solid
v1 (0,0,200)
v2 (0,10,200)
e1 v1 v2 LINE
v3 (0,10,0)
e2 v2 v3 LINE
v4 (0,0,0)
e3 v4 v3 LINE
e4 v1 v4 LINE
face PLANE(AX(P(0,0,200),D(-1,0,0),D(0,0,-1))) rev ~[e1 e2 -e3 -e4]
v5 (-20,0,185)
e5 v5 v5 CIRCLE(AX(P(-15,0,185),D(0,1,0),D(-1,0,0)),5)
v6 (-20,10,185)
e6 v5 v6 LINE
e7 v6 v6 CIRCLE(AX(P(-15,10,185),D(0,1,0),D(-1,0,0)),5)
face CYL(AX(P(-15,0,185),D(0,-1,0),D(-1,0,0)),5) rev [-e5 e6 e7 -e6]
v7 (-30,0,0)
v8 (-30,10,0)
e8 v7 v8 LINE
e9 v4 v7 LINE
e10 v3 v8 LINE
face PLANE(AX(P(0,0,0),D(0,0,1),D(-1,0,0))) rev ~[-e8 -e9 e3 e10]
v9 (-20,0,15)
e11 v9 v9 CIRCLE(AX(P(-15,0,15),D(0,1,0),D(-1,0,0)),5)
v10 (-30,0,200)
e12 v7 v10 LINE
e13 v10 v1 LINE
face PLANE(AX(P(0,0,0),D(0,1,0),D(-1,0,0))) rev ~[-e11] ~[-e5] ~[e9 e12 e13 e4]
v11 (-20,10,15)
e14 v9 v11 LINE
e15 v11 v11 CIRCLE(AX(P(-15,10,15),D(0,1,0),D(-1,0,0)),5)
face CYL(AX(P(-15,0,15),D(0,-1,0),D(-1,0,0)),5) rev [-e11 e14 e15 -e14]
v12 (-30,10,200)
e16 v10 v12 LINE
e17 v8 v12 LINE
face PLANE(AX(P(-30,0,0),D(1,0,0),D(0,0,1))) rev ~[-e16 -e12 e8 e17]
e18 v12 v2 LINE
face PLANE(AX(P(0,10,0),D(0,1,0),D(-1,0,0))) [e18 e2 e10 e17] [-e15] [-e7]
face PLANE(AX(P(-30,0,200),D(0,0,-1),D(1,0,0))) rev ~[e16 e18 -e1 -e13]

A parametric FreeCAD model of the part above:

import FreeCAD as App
import Part
import Sketcher
from FreeCAD import Vector
Q = App.Units.Quantity

doc = App.newDocument("Part")
body = doc.addObject("PartDesign::Body", "Body")

# Sketch on XZ plane
sketch1 = doc.addObject("Sketcher::SketchObject", "Sketch")
body.addObject(sketch1)
sketch1.AttachmentSupport = (doc.XZ_Plane, [""])
sketch1.MapMode = "FlatFace"
sketch1.addGeometry([
    Part.LineSegment(Vector(0, 200, 0), Vector(0, 0, 0)),  # 0
    Part.LineSegment(Vector(0, 0, 0), Vector(-30, 0, 0)),  # 1
    Part.LineSegment(Vector(-30, 0, 0), Vector(-30, 200, 0)),  # 2
    Part.LineSegment(Vector(-30, 200, 0), Vector(0, 200, 0)),  # 3
    Part.Circle(Vector(-15, 15, 0), Vector(0, 0, 1), 5),  # 4
    Part.Circle(Vector(-15, 185, 0), Vector(0, 0, 1), 5),  # 5
], False)
sketch1.addConstraint([
    Sketcher.Constraint("Coincident", 0, 2, 1, 1),
    Sketcher.Constraint("Coincident", 1, 2, 2, 1),
    Sketcher.Constraint("Coincident", 2, 2, 3, 1),
    Sketcher.Constraint("Coincident", 3, 2, 0, 1),
    Sketcher.Constraint("Vertical", 0),
    Sketcher.Constraint("Horizontal", 1),
    Sketcher.Constraint("Vertical", 2),
    Sketcher.Constraint("Horizontal", 3),
    Sketcher.Constraint("Coincident", 0, 2, -1, 1),
    Sketcher.Constraint("Equal", 4, 5),
    Sketcher.Constraint("Vertical", 4, 3, 5, 3),
    Sketcher.Constraint("Diameter", 4, Q("10 mm")),
    Sketcher.Constraint("DistanceX", 1, 2, 1, 1, Q("30 mm")),
    Sketcher.Constraint("DistanceY", 0, 2, 0, 1, Q("200 mm")),
    Sketcher.Constraint("DistanceX", 4, 3, -1, 1, Q("15 mm")),
    Sketcher.Constraint("DistanceY", -1, 1, 4, 3, Q("15 mm")),
    Sketcher.Constraint("DistanceY", 5, 3, 2, 2, Q("15 mm")),
])
pad1 = doc.addObject("PartDesign::Pad", "Pad")
body.addObject(pad1)
pad1.Profile = sketch1
pad1.Length = 10
pad1.Reversed = True

doc.recompute()
